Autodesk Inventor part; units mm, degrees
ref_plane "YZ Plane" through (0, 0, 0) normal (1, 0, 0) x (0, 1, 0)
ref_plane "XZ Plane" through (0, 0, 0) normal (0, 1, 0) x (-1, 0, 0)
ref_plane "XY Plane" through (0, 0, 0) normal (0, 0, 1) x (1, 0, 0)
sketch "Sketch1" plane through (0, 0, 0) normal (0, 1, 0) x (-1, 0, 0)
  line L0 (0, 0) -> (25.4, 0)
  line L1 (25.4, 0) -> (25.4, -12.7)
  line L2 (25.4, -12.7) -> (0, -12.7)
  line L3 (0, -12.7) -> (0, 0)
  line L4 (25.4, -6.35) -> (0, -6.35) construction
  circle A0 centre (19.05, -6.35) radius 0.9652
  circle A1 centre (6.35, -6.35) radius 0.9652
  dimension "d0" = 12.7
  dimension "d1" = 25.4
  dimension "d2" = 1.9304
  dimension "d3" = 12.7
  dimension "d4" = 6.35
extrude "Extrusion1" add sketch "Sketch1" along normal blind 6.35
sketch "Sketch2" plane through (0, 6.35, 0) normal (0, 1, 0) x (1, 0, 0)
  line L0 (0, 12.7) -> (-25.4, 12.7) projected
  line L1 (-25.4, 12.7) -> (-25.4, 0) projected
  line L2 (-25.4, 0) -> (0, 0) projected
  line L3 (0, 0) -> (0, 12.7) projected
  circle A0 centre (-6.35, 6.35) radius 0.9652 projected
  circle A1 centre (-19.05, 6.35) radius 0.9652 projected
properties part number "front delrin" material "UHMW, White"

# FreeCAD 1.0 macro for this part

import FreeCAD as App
import Part
import Sketcher
from FreeCAD import Vector
Q = App.Units.Quantity


def add_polygon(sketch, points):
    """Adds a closed chain of lines whose ends are joined by coincident constraints."""
    first, n = sketch.GeometryCount, len(points)
    for a, b in zip(points, points[1:] + points[:1]):
        sketch.addGeometry(Part.LineSegment(App.Vector(*a, 0), App.Vector(*b, 0)), False)
    for i in range(n):
        sketch.addConstraint(Sketcher.Constraint("Coincident", first + i, 2, first + (i + 1) % n, 1))

doc = App.newDocument("Part")
params = doc.addObject("Spreadsheet::Sheet", "Params")
for row, (alias, value) in enumerate([
    ("sketch1_width", "1 in"),
    ("sketch1_diameter", "0.076 in"),
    ("sketch1_height", "0.5 in"),
    ("pad1_length", "0.25 in"),
], start=1):
    params.set(f"A{row}", alias)
    params.set(f"B{row}", "=" + value)
    params.setAlias(f"B{row}", alias)

body = doc.addObject("PartDesign::Body", "Body")

sketch1 = body.newObject("Sketcher::SketchObject", "Sketch")
sketch1.AttachmentSupport = (doc.getObject("XZ_Plane"), [""])
sketch1.MapMode = "FlatFace"
add_polygon(sketch1, [(-25.4, 0), (0, 0), (0, -12.7), (-25.4, -12.7)])
sketch1.addGeometry(Part.Circle(Vector(-6.35, -6.35, 0), Vector(0, 0, 1), 0.9652), False)
sketch1.addGeometry(Part.Circle(Vector(-19.05, -6.35, 0), Vector(0, 0, 1), 0.9652), False)
sketch1.addConstraint([
    Sketcher.Constraint("Horizontal", 0),
    Sketcher.Constraint("Vertical", 1),
    Sketcher.Constraint("Horizontal", 2),
    Sketcher.Constraint("Vertical", 3),
    Sketcher.Constraint("Coincident", 0, 2, -1, 1),
    Sketcher.Constraint("Equal", 4, 5),
    Sketcher.Constraint("Horizontal", 4, 3, 5, 3),
    Sketcher.Constraint("DistanceX", 0, 1, 0, 2, Q("1 in")),
    Sketcher.Constraint("Diameter", 4, Q("0.076 in")),
    Sketcher.Constraint("DistanceY", 1, 2, 1, 1, Q("0.5 in")),
    Sketcher.Constraint("DistanceX", 5, 3, 4, 3, Q("0.5 in")),
    Sketcher.Constraint("DistanceX", 4, 3, -1, 1, Q("0.25 in")),
    Sketcher.Constraint("DistanceY", 4, 3, -1, 1, Q("0.25 in")),
])
sketch1.setExpression("Constraints[11]", "Params.sketch1_width")
sketch1.setExpression("Constraints[12]", "Params.sketch1_diameter")
sketch1.setExpression("Constraints[13]", "Params.sketch1_height")
pad1 = body.newObject("PartDesign::Pad", "Pad")
pad1.Profile = sketch1
pad1.setExpression("Length", "Params.pad1_length")
pad1.Reversed = True

doc.recompute()
